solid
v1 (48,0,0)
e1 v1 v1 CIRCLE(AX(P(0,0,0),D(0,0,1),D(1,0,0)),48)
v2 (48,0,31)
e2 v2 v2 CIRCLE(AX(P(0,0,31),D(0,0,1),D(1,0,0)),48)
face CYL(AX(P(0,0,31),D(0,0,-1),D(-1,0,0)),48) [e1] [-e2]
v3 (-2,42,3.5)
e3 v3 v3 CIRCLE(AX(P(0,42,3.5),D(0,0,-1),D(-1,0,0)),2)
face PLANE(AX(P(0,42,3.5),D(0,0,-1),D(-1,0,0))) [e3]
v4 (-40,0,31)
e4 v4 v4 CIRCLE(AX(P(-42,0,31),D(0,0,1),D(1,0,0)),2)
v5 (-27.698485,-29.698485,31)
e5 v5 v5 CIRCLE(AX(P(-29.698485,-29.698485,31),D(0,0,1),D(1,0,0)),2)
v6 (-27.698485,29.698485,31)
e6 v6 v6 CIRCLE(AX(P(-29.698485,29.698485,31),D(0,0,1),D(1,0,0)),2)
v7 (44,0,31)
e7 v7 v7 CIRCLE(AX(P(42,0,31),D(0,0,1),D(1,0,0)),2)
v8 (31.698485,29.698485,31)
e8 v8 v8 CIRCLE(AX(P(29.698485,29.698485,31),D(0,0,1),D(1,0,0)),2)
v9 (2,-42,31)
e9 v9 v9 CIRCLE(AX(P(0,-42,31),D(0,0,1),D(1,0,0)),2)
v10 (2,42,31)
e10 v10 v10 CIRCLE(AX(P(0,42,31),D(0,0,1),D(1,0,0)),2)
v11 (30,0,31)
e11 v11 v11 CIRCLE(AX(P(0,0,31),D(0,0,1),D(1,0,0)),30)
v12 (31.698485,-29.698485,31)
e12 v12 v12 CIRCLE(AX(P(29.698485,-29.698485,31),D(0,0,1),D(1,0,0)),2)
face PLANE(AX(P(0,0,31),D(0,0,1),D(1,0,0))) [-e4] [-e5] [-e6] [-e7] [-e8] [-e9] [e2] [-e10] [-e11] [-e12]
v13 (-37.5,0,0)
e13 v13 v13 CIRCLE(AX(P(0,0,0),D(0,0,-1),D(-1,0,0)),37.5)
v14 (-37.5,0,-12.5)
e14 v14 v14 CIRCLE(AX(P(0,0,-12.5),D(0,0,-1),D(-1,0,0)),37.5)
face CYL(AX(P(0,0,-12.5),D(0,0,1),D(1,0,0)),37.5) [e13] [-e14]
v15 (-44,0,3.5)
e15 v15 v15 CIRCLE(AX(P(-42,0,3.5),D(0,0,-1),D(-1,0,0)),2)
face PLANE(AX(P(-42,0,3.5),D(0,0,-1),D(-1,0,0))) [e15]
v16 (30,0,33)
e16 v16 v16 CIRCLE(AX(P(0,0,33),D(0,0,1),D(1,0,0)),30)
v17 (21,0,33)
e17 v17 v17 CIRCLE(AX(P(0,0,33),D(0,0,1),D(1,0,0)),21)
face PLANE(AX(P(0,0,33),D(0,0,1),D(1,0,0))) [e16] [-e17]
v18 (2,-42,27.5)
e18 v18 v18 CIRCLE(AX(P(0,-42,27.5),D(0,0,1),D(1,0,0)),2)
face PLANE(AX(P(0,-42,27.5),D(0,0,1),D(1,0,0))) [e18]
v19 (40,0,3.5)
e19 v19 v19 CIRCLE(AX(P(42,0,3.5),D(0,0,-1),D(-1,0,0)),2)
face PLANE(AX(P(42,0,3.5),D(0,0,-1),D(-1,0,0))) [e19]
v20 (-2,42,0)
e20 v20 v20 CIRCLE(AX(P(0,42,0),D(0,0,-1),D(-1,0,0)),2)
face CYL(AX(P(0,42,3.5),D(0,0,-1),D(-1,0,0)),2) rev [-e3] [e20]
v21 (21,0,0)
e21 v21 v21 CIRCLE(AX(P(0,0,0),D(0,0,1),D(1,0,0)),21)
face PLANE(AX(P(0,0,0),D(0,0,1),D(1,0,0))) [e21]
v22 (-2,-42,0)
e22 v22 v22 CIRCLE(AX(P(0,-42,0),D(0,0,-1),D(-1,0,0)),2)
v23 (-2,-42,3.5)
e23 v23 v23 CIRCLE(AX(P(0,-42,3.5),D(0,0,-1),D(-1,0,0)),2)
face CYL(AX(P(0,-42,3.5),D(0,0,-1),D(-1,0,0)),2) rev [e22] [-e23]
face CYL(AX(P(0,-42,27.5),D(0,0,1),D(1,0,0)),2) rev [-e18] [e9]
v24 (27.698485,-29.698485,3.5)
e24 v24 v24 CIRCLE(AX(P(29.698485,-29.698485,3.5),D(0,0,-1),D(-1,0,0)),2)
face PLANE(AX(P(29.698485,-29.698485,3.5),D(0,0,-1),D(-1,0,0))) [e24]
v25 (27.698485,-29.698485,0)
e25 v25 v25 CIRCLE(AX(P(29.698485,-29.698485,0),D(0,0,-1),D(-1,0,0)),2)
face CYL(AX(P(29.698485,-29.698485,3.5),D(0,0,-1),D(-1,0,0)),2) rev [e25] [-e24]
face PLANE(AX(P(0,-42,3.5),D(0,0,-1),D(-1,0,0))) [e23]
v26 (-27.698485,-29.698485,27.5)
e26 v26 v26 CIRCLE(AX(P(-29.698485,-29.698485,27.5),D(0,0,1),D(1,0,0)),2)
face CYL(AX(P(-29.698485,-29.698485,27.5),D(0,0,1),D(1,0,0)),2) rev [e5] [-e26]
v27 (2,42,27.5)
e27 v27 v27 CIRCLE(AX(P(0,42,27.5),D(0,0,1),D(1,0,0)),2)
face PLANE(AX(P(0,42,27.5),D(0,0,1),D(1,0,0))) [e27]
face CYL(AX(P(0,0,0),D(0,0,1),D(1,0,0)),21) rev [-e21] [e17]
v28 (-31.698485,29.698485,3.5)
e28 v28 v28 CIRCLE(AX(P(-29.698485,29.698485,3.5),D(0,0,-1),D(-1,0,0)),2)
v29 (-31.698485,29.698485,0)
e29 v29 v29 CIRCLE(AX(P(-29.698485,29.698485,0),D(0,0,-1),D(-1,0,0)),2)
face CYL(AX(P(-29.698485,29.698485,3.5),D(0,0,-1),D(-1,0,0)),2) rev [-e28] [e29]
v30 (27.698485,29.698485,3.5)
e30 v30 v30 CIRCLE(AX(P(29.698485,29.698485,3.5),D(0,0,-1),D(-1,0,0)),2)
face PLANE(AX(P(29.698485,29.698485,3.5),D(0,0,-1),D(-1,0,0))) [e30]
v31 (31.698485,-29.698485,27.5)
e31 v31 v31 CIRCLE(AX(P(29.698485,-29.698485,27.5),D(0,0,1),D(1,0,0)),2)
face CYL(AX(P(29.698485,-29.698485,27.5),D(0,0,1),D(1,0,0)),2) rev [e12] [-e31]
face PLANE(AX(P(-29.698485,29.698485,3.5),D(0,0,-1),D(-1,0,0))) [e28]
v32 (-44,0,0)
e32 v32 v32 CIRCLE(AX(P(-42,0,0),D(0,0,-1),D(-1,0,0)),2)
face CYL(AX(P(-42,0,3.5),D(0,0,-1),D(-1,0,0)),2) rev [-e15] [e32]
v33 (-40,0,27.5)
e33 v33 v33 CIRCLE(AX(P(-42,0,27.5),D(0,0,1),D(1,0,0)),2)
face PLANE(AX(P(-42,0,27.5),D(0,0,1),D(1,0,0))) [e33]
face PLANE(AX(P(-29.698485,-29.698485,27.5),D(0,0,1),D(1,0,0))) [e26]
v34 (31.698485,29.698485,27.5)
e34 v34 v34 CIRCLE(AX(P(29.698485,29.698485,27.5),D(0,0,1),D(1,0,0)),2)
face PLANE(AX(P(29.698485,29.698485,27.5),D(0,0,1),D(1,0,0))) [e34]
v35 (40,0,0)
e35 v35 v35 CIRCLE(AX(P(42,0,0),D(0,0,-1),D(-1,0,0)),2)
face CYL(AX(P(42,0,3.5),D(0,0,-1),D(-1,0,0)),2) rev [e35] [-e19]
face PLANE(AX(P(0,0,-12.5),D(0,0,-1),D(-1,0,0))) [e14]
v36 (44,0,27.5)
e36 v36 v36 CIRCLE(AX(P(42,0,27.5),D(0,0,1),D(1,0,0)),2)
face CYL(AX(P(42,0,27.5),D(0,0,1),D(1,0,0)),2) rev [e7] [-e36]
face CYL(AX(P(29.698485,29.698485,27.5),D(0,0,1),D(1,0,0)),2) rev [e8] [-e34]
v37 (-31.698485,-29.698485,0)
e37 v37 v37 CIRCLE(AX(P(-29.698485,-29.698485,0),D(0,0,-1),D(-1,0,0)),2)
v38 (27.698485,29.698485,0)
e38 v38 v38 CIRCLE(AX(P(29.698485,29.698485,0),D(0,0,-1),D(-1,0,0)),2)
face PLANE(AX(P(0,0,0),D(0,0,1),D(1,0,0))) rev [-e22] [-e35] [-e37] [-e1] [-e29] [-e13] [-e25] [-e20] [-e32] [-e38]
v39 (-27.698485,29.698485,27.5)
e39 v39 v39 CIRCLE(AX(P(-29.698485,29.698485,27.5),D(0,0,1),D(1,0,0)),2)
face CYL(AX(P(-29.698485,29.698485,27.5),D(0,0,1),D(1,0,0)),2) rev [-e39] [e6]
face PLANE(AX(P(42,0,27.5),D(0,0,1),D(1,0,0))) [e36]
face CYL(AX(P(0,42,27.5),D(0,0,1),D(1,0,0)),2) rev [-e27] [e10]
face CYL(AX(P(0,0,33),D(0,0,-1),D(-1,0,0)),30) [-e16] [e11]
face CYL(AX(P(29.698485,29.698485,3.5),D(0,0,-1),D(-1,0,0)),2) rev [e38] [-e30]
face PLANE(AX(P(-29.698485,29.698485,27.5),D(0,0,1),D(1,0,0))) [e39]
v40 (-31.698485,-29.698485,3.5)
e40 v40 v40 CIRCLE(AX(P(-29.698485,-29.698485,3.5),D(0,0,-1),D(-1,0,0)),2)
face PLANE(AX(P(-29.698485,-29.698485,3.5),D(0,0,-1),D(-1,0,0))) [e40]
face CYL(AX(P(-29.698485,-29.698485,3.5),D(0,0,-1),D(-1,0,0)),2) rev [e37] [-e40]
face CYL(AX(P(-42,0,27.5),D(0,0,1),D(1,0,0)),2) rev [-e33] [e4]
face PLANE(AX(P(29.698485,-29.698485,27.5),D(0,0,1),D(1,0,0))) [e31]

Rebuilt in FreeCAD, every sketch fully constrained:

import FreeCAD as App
import Part
import Sketcher

V = App.Vector

doc = App.newDocument("Part")
body = doc.addObject("PartDesign::Body", "Body")

# Sketch on XY plane
sketch1 = body.newObject("Sketcher::SketchObject", "Sketch")
sketch1.AttachmentSupport = (doc.getObject("XY_Plane"), [""])
sketch1.MapMode = "FlatFace"
sketch1.addGeometry(Part.Circle(V(0, 0, 0), V(0, 0, 1), 48), False)
sketch1.addConstraint([
    Sketcher.Constraint("Coincident", 0, 3, -1, 1),
    Sketcher.Constraint("Diameter", 0, 96.0),
])
pad1 = body.newObject("PartDesign::Pad", "Pad")
pad1.Profile = sketch1
pad1.Length = 31

# Sketch on XY plane
sketch2 = body.newObject("Sketcher::SketchObject", "Sketch001")
sketch2.AttachmentSupport = (doc.getObject("XY_Plane"), [""])
sketch2.MapMode = "FlatFace"
sketch2.AttachmentOffset = App.Placement(V(0, 0, 31), App.Rotation())
sketch2.addGeometry([
    Part.Circle(V(0, 42, 0), V(0, 0, 1), 2),  # 0
    Part.Circle(V(29.698485, 29.698485, 0), V(0, 0, 1), 2),  # 1
    Part.Circle(V(42, 0, 0), V(0, 0, 1), 2),  # 2
    Part.Circle(V(29.698485, -29.698485, 0), V(0, 0, 1), 2),  # 3
    Part.Circle(V(0, -42, 0), V(0, 0, 1), 2),  # 4
    Part.Circle(V(-29.698485, -29.698485, 0), V(0, 0, 1), 2),  # 5
    Part.Circle(V(-42, 0, 0), V(0, 0, 1), 2),  # 6
    Part.Circle(V(-29.698485, 29.698485, 0), V(0, 0, 1), 2),  # 7
], False)
sketch2.addConstraint([
    Sketcher.Constraint("Equal", 0, 1),
    Sketcher.Constraint("Equal", 1, 2),
    Sketcher.Constraint("Equal", 2, 3),
    Sketcher.Constraint("Equal", 3, 4),
    Sketcher.Constraint("Equal", 4, 5),
    Sketcher.Constraint("Equal", 5, 6),
    Sketcher.Constraint("Equal", 6, 7),
    Sketcher.Constraint("Symmetric", 0, 3, 4, 3, -1, 1),
    Sketcher.Constraint("Symmetric", 1, 3, 5, 3, -1, 1),
    Sketcher.Constraint("Symmetric", 2, 3, 6, 3, -1, 1),
    Sketcher.Constraint("Symmetric", 3, 3, 7, 3, -1, 1),
    Sketcher.Constraint("Symmetric", 3, 3, 5, 3, -2),
    Sketcher.Constraint("PointOnObject", 0, 3, -2),
    Sketcher.Constraint("PointOnObject", 2, 3, -1),
    Sketcher.Constraint("Diameter", 0, 4.0),
    Sketcher.Constraint("DistanceY", -1, 1, 0, 3, 42.0),
    Sketcher.Constraint("DistanceX", -1, 1, 2, 3, 42.0),
    Sketcher.Constraint("DistanceY", 3, 3, 1, 3, 59.39697),
    Sketcher.Constraint("DistanceX", 5, 3, 3, 3, 59.39697),
])
pocket1 = body.newObject("PartDesign::Pocket", "Pocket")
pocket1.Profile = sketch2
pocket1.Length = 3.5

# Sketch on XY plane
sketch3 = body.newObject("Sketcher::SketchObject", "Sketch002")
sketch3.AttachmentSupport = (doc.getObject("XY_Plane"), [""])
sketch3.MapMode = "FlatFace"
sketch3.AttachmentOffset = App.Placement(V(0, 0, 31), App.Rotation())
sketch3.addGeometry(Part.Circle(V(0, 0, 0), V(0, 0, 1), 30), False)
sketch3.addConstraint([
    Sketcher.Constraint("Coincident", 0, 3, -1, 1),
    Sketcher.Constraint("Diameter", 0, 60.0),
])
pad2 = body.newObject("PartDesign::Pad", "Pad001")
pad2.Profile = sketch3
pad2.Length = 2

# Sketch on XY plane
sketch4 = body.newObject("Sketcher::SketchObject", "Sketch003")
sketch4.AttachmentSupport = (doc.getObject("XY_Plane"), [""])
sketch4.MapMode = "FlatFace"
sketch4.addGeometry(Part.Circle(V(0, 0, 0), V(0, 0, 1), 37.5), False)
sketch4.addConstraint([
    Sketcher.Constraint("Coincident", 0, 3, -1, 1),
    Sketcher.Constraint("Diameter", 0, 75.0),
])
pad3 = body.newObject("PartDesign::Pad", "Pad002")
pad3.Profile = sketch4
pad3.Length = 12.5
pad3.Reversed = True

# Sketch on XY plane
sketch5 = body.newObject("Sketcher::SketchObject", "Sketch004")
sketch5.AttachmentSupport = (doc.getObject("XY_Plane"), [""])
sketch5.MapMode = "FlatFace"
sketch5.AttachmentOffset = App.Placement(V(0, 0, 33), App.Rotation())
sketch5.addGeometry(Part.Circle(V(0, 0, 0), V(0, 0, 1), 21), False)
sketch5.addConstraint([
    Sketcher.Constraint("Coincident", 0, 3, -1, 1),
    Sketcher.Constraint("Diameter", 0, 42.0),
])
pocket2 = body.newObject("PartDesign::Pocket", "Pocket001")
pocket2.Profile = sketch5
pocket2.Length = 33

# Sketch on XY plane
sketch6 = body.newObject("Sketcher::SketchObject", "Sketch005")
sketch6.AttachmentSupport = (doc.getObject("XY_Plane"), [""])
sketch6.MapMode = "FlatFace"
sketch6.AttachmentOffset = App.Placement(V(0, 0, 3.5), App.Rotation())
sketch6.addGeometry([
    Part.Circle(V(0, 42, 0), V(0, 0, 1), 2),  # 0
    Part.Circle(V(-29.698485, 29.698485, 0), V(0, 0, 1), 2),  # 1
    Part.Circle(V(-42, 0, 0), V(0, 0, 1), 2),  # 2
    Part.Circle(V(-29.698485, -29.698485, 0), V(0, 0, 1), 2),  # 3
    Part.Circle(V(0, -42, 0), V(0, 0, 1), 2),  # 4
    Part.Circle(V(29.698485, -29.698485, 0), V(0, 0, 1), 2),  # 5
    Part.Circle(V(42, 0, 0), V(0, 0, 1), 2),  # 6
    Part.Circle(V(29.698485, 29.698485, 0), V(0, 0, 1), 2),  # 7
], False)
sketch6.addConstraint([
    Sketcher.Constraint("Equal", 0, 1),
    Sketcher.Constraint("Equal", 1, 2),
    Sketcher.Constraint("Equal", 2, 3),
    Sketcher.Constraint("Equal", 3, 4),
    Sketcher.Constraint("Equal", 4, 5),
    Sketcher.Constraint("Equal", 5, 6),
    Sketcher.Constraint("Equal", 6, 7),
    Sketcher.Constraint("Symmetric", 0, 3, 4, 3, -1, 1),
    Sketcher.Constraint("Symmetric", 1, 3, 5, 3, -1, 1),
    Sketcher.Constraint("Symmetric", 2, 3, 6, 3, -1, 1),
    Sketcher.Constraint("Symmetric", 3, 3, 7, 3, -1, 1),
    Sketcher.Constraint("Symmetric", 3, 3, 5, 3, -2),
    Sketcher.Constraint("PointOnObject", 0, 3, -2),
    Sketcher.Constraint("PointOnObject", 2, 3, -1),
    Sketcher.Constraint("Diameter", 0, 4.0),
    Sketcher.Constraint("DistanceY", -1, 1, 0, 3, 42.0),
    Sketcher.Constraint("DistanceX", 2, 3, -1, 1, 42.0),
    Sketcher.Constraint("DistanceY", 3, 3, 1, 3, 59.39697),
    Sketcher.Constraint("DistanceX", 3, 3, 5, 3, 59.39697),
])
pocket3 = body.newObject("PartDesign::Pocket", "Pocket002")
pocket3.Profile = sketch6
pocket3.Length = 3.5

doc.recompute()
